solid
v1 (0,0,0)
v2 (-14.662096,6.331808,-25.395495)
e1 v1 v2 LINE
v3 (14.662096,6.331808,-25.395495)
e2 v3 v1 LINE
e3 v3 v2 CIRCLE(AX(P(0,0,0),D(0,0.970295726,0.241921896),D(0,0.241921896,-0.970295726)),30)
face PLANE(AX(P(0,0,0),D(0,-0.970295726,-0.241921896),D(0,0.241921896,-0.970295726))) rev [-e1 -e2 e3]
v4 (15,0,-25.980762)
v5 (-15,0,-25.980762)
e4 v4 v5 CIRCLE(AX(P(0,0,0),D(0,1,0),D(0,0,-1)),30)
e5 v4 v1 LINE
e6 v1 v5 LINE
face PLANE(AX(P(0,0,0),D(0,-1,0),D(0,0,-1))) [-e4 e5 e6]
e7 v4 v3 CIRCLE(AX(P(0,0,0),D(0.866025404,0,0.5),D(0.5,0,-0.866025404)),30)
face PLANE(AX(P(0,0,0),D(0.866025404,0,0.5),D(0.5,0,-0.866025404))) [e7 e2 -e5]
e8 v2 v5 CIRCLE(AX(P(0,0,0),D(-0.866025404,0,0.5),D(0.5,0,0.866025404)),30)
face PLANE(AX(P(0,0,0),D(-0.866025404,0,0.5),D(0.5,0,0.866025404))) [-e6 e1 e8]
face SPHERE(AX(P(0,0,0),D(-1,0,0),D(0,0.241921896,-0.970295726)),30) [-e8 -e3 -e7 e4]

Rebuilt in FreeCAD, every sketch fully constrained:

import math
import FreeCAD as App
import Part
import Sketcher
Q = App.Units.Quantity


def add_polygon(sketch, points):
    """Adds a closed chain of lines whose ends are joined by coincident constraints."""
    first, n = sketch.GeometryCount, len(points)
    for a, b in zip(points, points[1:] + points[:1]):
        sketch.addGeometry(Part.LineSegment(App.Vector(*a, 0), App.Vector(*b, 0)), False)
    for i in range(n):
        sketch.addConstraint(Sketcher.Constraint("Coincident", first + i, 2, first + (i + 1) % n, 1))

doc = App.newDocument("Part")
body = doc.addObject("PartDesign::Body", "Body")

sketch1 = body.newObject("Sketcher::SketchObject", "Sketch")
sketch1.AttachmentSupport = (doc.getObject("XZ_Plane"), [""])
sketch1.MapMode = "FlatFace"
sketch1.addGeometry([
    Part.LineSegment(App.Vector(-30, 0, 0), App.Vector(30, 0, 0)),
    Part.ArcOfCircle(Part.Circle(App.Vector(0, 0, 0), App.Vector(0, 0, 1), 30), math.radians(180), math.radians(360)),
], False)
sketch1.addConstraint([
    Sketcher.Constraint("Coincident", 0, 1, 1, 1),
    Sketcher.Constraint("Coincident", 1, 2, 0, 2),
    Sketcher.Constraint("Horizontal", 0),
    Sketcher.Constraint("Coincident", 1, 3, -1, 1),
    Sketcher.Constraint("PointOnObject", 0, 1, -1),
    Sketcher.Constraint("Radius", 1, Q("30 mm")),
])
revolution = body.newObject("PartDesign::Revolution", "Revolution")
revolution.Profile = sketch1
revolution.ReferenceAxis = (sketch1, ["H_Axis"])
revolution.Angle = 14

sketch2 = body.newObject("Sketcher::SketchObject", "Sketch001")
sketch2.Placement = App.Placement(App.Vector(0, 0, 0), App.Rotation(App.Vector(0, 1, 0), App.Vector(0.5, 0, -0.866025404), App.Vector(-0.866025404, 0, -0.5), "ZXY"))
add_polygon(sketch2, [(-22, 47), (-22, -47), (22, -47), (22, 47)])
sketch2.addConstraint([
    Sketcher.Constraint("Vertical", 0),
    Sketcher.Constraint("Horizontal", 1),
    Sketcher.Constraint("Vertical", 2),
    Sketcher.Constraint("Horizontal", 3),
    Sketcher.Constraint("Symmetric", 0, 2, 2, 2, -1, 1),
    Sketcher.Constraint("DistanceX", 1, 1, 1, 2, Q("44.686574 mm")),
    Sketcher.Constraint("DistanceY", 0, 2, 0, 1, Q("93.829394 mm")),
])
pocket1 = body.newObject("PartDesign::Pocket", "Pocket")
pocket1.Profile = sketch2
pocket1.Length = 50

sketch3 = body.newObject("Sketcher::SketchObject", "Sketch002")
sketch3.Placement = App.Placement(App.Vector(0, 0, 0), App.Rotation(App.Vector(0, 1, 0), App.Vector(-0.5, 0, -0.866025404), App.Vector(-0.866025404, 0, 0.5), "ZXY"))
add_polygon(sketch3, [(-13, 39), (-13, -39), (13, -39), (13, 39)])
sketch3.addConstraint([
    Sketcher.Constraint("Vertical", 0),
    Sketcher.Constraint("Horizontal", 1),
    Sketcher.Constraint("Vertical", 2),
    Sketcher.Constraint("Horizontal", 3),
    Sketcher.Constraint("Symmetric", 0, 2, 2, 2, -1, 1),
    Sketcher.Constraint("DistanceX", 1, 1, 1, 2, Q("25.088928 mm")),
    Sketcher.Constraint("DistanceY", 0, 2, 0, 1, Q("77.533839 mm")),
])
pocket2 = body.newObject("PartDesign::Pocket", "Pocket001")
pocket2.Profile = sketch3
pocket2.Length = 39
pocket2.Reversed = True

doc.recompute()
